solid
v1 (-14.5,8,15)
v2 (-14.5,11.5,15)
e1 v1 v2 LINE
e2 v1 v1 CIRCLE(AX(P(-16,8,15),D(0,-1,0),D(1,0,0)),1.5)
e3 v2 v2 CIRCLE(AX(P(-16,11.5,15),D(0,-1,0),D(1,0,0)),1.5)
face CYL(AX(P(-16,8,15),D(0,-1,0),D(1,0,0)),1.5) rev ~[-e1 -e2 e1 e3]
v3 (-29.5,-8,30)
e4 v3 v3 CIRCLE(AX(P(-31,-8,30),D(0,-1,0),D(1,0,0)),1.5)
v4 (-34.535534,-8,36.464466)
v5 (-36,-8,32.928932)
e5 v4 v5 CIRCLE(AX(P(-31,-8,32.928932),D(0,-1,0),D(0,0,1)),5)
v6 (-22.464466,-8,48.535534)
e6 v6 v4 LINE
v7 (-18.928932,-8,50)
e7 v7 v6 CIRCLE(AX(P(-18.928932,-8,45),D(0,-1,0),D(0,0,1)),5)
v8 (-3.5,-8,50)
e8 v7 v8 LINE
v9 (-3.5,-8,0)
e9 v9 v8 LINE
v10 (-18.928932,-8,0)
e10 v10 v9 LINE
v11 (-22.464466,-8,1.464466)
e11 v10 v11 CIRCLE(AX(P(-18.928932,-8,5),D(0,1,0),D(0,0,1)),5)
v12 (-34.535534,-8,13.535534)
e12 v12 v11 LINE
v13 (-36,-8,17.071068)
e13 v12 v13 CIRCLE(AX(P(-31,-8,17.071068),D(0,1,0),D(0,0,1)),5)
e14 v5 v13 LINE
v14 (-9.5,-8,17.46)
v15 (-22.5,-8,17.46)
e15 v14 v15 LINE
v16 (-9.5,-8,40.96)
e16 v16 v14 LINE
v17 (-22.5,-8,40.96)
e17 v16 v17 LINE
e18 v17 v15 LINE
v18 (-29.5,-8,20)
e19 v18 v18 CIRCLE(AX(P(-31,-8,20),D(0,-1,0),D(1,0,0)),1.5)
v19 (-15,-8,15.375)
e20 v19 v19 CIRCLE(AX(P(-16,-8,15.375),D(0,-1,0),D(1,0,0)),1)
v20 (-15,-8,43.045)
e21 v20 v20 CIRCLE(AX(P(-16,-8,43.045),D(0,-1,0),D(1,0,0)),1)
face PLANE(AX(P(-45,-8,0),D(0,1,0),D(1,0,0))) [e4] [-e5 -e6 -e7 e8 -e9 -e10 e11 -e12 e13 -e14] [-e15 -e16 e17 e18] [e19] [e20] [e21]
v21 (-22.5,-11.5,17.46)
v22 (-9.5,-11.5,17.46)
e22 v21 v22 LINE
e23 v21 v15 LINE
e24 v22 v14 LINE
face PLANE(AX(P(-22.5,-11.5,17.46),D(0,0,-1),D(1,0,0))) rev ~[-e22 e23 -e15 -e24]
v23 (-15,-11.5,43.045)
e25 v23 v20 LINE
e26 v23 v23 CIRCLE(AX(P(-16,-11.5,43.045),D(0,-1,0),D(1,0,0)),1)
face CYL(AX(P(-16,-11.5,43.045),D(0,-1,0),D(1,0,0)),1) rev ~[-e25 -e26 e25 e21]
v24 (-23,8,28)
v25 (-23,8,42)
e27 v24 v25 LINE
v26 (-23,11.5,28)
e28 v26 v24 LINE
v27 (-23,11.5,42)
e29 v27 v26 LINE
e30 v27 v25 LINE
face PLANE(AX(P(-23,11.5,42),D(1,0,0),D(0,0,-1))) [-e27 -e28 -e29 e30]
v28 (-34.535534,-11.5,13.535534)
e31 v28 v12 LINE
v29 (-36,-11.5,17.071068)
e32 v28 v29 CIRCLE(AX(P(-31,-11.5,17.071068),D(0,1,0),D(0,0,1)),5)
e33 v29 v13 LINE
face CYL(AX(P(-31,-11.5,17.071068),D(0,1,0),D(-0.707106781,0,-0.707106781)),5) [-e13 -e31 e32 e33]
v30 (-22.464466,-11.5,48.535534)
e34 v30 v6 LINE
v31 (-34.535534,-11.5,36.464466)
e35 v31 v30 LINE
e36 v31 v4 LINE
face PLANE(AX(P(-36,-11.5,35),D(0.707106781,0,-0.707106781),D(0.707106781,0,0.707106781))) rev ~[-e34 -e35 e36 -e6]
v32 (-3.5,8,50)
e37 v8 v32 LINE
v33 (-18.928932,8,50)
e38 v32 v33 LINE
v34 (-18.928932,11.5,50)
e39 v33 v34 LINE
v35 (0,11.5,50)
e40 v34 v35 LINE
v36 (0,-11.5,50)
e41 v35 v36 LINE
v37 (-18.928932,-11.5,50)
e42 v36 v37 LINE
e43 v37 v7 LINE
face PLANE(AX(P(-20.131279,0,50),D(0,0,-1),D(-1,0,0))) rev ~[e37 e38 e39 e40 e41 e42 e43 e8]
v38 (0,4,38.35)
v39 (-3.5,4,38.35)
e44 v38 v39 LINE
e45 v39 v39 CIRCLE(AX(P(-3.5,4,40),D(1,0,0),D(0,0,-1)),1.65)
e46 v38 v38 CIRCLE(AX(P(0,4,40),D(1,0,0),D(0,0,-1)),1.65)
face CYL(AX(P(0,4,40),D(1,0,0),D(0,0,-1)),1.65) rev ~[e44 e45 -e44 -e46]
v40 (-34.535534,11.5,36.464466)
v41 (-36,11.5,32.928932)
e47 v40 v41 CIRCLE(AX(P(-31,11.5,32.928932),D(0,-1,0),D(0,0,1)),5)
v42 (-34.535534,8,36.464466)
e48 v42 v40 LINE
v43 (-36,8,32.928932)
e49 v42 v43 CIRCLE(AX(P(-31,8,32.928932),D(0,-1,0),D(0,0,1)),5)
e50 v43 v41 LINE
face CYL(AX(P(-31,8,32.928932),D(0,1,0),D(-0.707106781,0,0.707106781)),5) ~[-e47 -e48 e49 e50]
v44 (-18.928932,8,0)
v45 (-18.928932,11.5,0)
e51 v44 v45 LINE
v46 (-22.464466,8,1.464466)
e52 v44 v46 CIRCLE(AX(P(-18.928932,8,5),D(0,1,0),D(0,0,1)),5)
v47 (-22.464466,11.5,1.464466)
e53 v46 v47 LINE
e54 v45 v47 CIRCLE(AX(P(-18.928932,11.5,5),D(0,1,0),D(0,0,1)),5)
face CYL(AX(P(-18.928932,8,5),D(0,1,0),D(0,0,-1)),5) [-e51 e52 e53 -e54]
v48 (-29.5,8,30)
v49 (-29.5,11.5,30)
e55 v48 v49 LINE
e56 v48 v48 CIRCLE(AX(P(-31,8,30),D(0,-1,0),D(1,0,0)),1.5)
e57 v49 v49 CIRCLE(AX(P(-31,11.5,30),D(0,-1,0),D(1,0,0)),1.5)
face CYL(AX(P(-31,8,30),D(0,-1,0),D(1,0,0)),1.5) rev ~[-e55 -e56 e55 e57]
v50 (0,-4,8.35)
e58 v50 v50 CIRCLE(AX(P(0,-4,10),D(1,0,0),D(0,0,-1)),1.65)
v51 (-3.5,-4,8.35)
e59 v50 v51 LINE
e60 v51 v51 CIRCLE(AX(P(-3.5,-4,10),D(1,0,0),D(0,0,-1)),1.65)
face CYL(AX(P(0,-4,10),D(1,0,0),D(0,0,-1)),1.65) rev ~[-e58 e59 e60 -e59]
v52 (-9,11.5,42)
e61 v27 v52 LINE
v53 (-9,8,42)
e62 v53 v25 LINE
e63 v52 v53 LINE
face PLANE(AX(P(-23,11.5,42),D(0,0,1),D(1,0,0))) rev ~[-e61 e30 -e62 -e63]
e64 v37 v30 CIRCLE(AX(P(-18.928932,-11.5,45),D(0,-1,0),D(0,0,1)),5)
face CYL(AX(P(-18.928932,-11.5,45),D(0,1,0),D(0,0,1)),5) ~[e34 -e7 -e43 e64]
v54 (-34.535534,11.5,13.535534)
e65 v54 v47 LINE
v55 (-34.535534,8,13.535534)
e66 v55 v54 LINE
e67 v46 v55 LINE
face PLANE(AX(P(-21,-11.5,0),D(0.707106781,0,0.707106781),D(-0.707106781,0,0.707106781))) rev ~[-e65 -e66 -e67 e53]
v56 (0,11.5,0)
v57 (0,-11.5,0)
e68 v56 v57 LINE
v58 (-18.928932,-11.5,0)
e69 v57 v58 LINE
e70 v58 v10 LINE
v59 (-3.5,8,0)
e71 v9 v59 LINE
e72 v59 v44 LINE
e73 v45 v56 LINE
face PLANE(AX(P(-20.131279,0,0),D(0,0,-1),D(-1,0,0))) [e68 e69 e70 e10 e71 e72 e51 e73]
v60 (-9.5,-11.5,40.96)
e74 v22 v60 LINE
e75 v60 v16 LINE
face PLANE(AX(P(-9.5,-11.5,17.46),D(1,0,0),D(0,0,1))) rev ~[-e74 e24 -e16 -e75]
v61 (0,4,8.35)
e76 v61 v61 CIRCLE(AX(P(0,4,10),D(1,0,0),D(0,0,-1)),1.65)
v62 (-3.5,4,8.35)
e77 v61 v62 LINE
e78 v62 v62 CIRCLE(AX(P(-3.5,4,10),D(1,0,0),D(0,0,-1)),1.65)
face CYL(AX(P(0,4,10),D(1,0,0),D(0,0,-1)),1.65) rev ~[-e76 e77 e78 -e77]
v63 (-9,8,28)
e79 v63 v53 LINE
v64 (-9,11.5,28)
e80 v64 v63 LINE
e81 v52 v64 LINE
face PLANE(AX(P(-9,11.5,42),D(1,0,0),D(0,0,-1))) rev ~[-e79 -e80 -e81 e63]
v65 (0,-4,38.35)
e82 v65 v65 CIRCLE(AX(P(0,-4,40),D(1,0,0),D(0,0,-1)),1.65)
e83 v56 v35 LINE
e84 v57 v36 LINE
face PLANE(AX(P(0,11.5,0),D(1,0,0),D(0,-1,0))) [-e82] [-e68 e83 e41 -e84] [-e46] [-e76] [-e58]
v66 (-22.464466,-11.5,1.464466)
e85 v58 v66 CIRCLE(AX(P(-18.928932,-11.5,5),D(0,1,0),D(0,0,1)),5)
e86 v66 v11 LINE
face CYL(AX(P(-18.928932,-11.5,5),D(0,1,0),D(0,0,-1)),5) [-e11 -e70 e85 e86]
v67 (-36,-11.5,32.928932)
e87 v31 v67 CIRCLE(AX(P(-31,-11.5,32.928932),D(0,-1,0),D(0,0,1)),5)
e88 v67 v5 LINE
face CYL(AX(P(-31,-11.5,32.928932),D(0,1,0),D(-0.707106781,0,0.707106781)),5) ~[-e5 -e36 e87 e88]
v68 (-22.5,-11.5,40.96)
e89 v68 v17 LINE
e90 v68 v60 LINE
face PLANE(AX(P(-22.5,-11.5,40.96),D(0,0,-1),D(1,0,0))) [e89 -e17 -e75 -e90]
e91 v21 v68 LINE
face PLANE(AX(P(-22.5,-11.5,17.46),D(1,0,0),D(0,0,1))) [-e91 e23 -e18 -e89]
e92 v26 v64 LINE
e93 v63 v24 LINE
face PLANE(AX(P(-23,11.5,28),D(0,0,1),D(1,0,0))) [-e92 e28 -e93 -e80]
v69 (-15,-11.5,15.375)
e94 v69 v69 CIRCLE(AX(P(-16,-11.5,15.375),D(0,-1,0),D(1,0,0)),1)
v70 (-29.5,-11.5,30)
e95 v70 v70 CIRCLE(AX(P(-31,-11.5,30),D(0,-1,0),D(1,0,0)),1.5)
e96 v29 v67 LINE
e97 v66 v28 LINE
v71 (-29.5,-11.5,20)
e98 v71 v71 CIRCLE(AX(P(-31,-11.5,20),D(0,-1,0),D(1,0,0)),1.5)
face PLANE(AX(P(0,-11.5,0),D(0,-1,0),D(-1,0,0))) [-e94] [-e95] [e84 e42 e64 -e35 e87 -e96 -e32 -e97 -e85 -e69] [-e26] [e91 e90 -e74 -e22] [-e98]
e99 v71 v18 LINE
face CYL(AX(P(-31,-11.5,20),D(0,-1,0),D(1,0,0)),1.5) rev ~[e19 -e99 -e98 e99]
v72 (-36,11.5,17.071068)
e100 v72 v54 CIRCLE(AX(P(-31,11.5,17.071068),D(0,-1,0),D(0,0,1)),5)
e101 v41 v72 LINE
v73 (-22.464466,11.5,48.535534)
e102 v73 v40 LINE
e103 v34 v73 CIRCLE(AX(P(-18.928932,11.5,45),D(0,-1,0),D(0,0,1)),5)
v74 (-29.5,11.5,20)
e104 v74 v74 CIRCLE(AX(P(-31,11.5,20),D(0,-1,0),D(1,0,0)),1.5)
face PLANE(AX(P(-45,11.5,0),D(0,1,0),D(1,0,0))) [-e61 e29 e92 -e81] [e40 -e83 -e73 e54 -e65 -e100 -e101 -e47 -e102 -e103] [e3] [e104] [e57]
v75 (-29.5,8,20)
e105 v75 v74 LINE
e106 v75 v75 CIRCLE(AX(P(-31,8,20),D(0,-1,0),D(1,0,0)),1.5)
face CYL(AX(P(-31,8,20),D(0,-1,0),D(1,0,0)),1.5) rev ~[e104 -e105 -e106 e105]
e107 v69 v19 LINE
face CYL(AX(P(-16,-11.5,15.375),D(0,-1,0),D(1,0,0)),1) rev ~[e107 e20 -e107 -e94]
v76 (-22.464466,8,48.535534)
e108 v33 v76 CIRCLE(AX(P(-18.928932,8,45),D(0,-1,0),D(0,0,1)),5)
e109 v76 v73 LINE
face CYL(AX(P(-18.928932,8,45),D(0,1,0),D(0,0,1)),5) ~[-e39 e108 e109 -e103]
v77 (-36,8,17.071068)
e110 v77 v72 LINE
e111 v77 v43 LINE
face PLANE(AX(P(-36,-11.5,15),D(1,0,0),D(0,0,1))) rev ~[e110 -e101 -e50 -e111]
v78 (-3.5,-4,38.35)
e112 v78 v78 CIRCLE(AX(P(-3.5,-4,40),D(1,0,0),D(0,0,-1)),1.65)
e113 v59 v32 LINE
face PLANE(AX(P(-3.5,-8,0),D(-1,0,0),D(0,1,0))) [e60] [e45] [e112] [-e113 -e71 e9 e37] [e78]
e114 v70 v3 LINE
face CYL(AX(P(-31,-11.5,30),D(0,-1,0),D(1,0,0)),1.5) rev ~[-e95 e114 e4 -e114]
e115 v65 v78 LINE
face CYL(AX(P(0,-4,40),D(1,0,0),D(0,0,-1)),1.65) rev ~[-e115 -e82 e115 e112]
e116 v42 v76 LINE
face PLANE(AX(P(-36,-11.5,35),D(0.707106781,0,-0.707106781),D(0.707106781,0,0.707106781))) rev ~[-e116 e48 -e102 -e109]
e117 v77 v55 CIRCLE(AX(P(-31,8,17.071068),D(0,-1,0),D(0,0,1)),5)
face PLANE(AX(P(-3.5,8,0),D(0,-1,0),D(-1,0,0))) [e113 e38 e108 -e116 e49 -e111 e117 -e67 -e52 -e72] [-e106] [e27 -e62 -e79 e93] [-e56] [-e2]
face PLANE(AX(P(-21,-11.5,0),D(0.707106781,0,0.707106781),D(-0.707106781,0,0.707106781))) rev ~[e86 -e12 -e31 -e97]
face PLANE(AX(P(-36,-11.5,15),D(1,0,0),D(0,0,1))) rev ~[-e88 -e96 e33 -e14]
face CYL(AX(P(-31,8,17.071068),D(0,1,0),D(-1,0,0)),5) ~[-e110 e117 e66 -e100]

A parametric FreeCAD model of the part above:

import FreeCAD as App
import Part
import Sketcher

V = App.Vector
Q = App.Units.Quantity


def edges_at(feature, points):
    """Names of the edges that pass closest to the given points."""
    edges = feature.Shape.Edges
    near = lambda p: min(range(len(edges)), key=lambda i: edges[i].distToShape(Part.Vertex(*p))[0])
    return sorted({f"Edge{near(p) + 1}" for p in points})


def add_polygon(sketch, points):
    """Adds a closed chain of lines whose ends are joined by coincident constraints."""
    first, n = sketch.GeometryCount, len(points)
    for a, b in zip(points, points[1:] + points[:1]):
        sketch.addGeometry(Part.LineSegment(App.Vector(*a, 0), App.Vector(*b, 0)), False)
    for i in range(n):
        sketch.addConstraint(Sketcher.Constraint("Coincident", first + i, 2, first + (i + 1) % n, 1))

doc = App.newDocument("Part")
body = doc.addObject("PartDesign::Body", "Body")

# Sketch on XY plane
sketch1 = body.newObject("Sketcher::SketchObject", "Sketch")
sketch1.AttachmentSupport = (doc.getObject("XY_Plane"), [""])
sketch1.MapMode = "FlatFace"
add_polygon(sketch1, [(0, 11.5), (-45, 11.5), (-45, 8), (-3.5, 8), (-3.5, -8), (-45, -8), (-45, -11.5), (0, -11.5)])  # lines 0-7
sketch1.addConstraint([
    Sketcher.Constraint("Horizontal", 0),
    Sketcher.Constraint("Vertical", 1),
    Sketcher.Constraint("Horizontal", 2),
    Sketcher.Constraint("Vertical", 3),
    Sketcher.Constraint("Horizontal", 4),
    Sketcher.Constraint("Vertical", 5),
    Sketcher.Constraint("Horizontal", 6),
    Sketcher.Constraint("Vertical", 7),
    Sketcher.Constraint("Symmetric", 6, 2, 7, 2, -1, 1),
    Sketcher.Constraint("Symmetric", 1, 2, 4, 2, -1),
    Sketcher.Constraint("DistanceX", 0, 2, 0, 1, Q("45 mm")),
    Sketcher.Constraint("DistanceY", 3, 2, 3, 1, Q("16 mm")),
    Sketcher.Constraint("DistanceY", 7, 1, 7, 2, Q("23 mm")),
    Sketcher.Constraint("DistanceX", 2, 1, 2, 2, Q("41.5 mm")),
])
pad1 = body.newObject("PartDesign::Pad", "Pad")
pad1.Profile = sketch1
pad1.Length = 50

# Sketch on XZ plane
sketch2 = body.newObject("Sketcher::SketchObject", "Sketch001")
sketch2.AttachmentSupport = (doc.getObject("XZ_Plane"), [""])
sketch2.MapMode = "FlatFace"
sketch2.AttachmentOffset = App.Placement(V(0, 0, -8), App.Rotation())
sketch2.addGeometry([
    Part.Circle(V(-16, 35, 0), V(0, 0, 1), 1.5),
    Part.Circle(V(-16, 15, 0), V(0, 0, 1), 1.5),
    Part.Circle(V(-31, 30, 0), V(0, 0, 1), 1.5),
    Part.Circle(V(-31, 20, 0), V(0, 0, 1), 1.5),
], False)
sketch2.addConstraint([
    Sketcher.Constraint("Equal", 0, 1),
    Sketcher.Constraint("Equal", 1, 2),
    Sketcher.Constraint("Equal", 2, 3),
    Sketcher.Constraint("Vertical", 0, 3, 1, 3),
    Sketcher.Constraint("Vertical", 2, 3, 3, 3),
    Sketcher.Constraint("Diameter", 0, Q("3 mm")),
    Sketcher.Constraint("DistanceX", 0, 3, -1, 1, Q("16 mm")),
    Sketcher.Constraint("DistanceY", -1, 1, 0, 3, Q("35 mm")),
    Sketcher.Constraint("DistanceY", -1, 1, 1, 3, Q("15 mm")),
    Sketcher.Constraint("DistanceX", 2, 3, -1, 1, Q("31 mm")),
    Sketcher.Constraint("DistanceY", -1, 1, 2, 3, Q("30 mm")),
    Sketcher.Constraint("DistanceY", -1, 1, 3, 3, Q("20 mm")),
])
pocket1 = body.newObject("PartDesign::Pocket", "Pocket")
pocket1.Profile = sketch2
pocket1.Length = 70

# Sketch on XZ plane
sketch3 = body.newObject("Sketcher::SketchObject", "Sketch002")
sketch3.AttachmentSupport = (doc.getObject("XZ_Plane"), [""])
sketch3.MapMode = "FlatFace"
sketch3.AttachmentOffset = App.Placement(V(0, 0, 11.5), App.Rotation())
add_polygon(sketch3, [(-53, 58), (-53, -8), (8, -8), (8, 58)])  # lines 0-3
add_polygon(sketch3, [(0, 0), (-21, 0), (-36, 15), (-36, 35), (-21, 50), (0, 50)])  # lines 4-9
sketch3.addConstraint([
    Sketcher.Constraint("Vertical", 0),
    Sketcher.Constraint("Horizontal", 1),
    Sketcher.Constraint("Vertical", 2),
    Sketcher.Constraint("Horizontal", 3),
    Sketcher.Constraint("Horizontal", 4),
    Sketcher.Constraint("Vertical", 6),
    Sketcher.Constraint("Horizontal", 8),
    Sketcher.Constraint("Vertical", 9),
    Sketcher.Constraint("Coincident", 9, 2, -1, 1),
    Sketcher.Constraint("Perpendicular", 5, 7),
    Sketcher.Constraint("Vertical", 4, 2, 7, 2),
    Sketcher.Constraint("Equal", 5, 7),
    Sketcher.Constraint("DistanceX", 4, 2, 4, 1, Q("21 mm")),
    Sketcher.Constraint("DistanceY", 6, 1, 6, 2, Q("20 mm")),
    Sketcher.Constraint("DistanceY", 9, 2, 9, 1, Q("50 mm")),
    Sketcher.Constraint("DistanceX", 1, 1, 1, 2, Q("61.218 mm")),
    Sketcher.Constraint("DistanceY", 0, 2, 0, 1, Q("66.218 mm")),
    Sketcher.Constraint("DistanceX", 0, 2, -1, 1, Q("53.109 mm")),
    Sketcher.Constraint("DistanceY", 0, 2, -1, 1, Q("8.109 mm")),
])
pocket2 = body.newObject("PartDesign::Pocket", "Pocket001")
pocket2.Profile = sketch3
pocket2.Length = 70

# Sketch on XZ plane
sketch4 = body.newObject("Sketcher::SketchObject", "Sketch003")
sketch4.AttachmentSupport = (doc.getObject("XZ_Plane"), [""])
sketch4.MapMode = "FlatFace"
sketch4.AttachmentOffset = App.Placement(V(0, 0, 11.5), App.Rotation())
sketch4.addGeometry([
    Part.Circle(V(-31, 30, 0), V(0, 0, 1), 1.5),
    Part.Circle(V(-31, 20, 0), V(0, 0, 1), 1.5),
], False)
sketch4.addConstraint([
    Sketcher.Constraint("Equal", 0, 1),
    Sketcher.Constraint("Vertical", 0, 3, 1, 3),
    Sketcher.Constraint("Diameter", 0, Q("3 mm")),
    Sketcher.Constraint("DistanceX", 0, 3, -1, 1, Q("31 mm")),
    Sketcher.Constraint("DistanceY", -1, 1, 0, 3, Q("30 mm")),
    Sketcher.Constraint("DistanceY", -1, 1, 1, 3, Q("20 mm")),
])
pocket3 = body.newObject("PartDesign::Pocket", "Pocket002")
pocket3.Profile = sketch4
pocket3.Length = 10

# Sketch on XZ plane
sketch5 = body.newObject("Sketcher::SketchObject", "Sketch004")
sketch5.AttachmentSupport = (doc.getObject("XZ_Plane"), [""])
sketch5.MapMode = "FlatFace"
sketch5.AttachmentOffset = App.Placement(V(0, 0, 11.5), App.Rotation())
sketch5.addGeometry([
    Part.Circle(V(-16, 43, 0), V(0, 0, 1), 1),
    Part.Circle(V(-16, 15.4, 0), V(0, 0, 1), 1),
], False)
sketch5.addConstraint([
    Sketcher.Constraint("Equal", 0, 1),
    Sketcher.Constraint("Vertical", 0, 3, 1, 3),
    Sketcher.Constraint("Diameter", 0, Q("2 mm")),
    Sketcher.Constraint("DistanceX", 0, 3, -1, 1, Q("16 mm")),
    Sketcher.Constraint("DistanceY", 1, 3, 0, 3, Q("27.67 mm")),
    Sketcher.Constraint("DistanceY", -1, 1, 0, 3, Q("43.045 mm")),
])
pocket4 = body.newObject("PartDesign::Pocket", "Pocket003")
pocket4.Profile = sketch5
pocket4.Length = 10
doc.recompute()

fillet = body.newObject("PartDesign::Fillet", "Fillet")
fillet.Base = (pocket4, edges_at(pocket4, [
    (-21, -9.75, 0),
    (-21, 9.75, 0),
    (-21, -9.75, 50),
    (-21, 9.75, 50),
    (-36, 9.75, 35),
    (-36, -9.75, 35),
    (-36, 9.75, 15),
    (-36, -9.75, 15),
]))
fillet.Radius = 5

# Sketch on XZ plane
sketch6 = body.newObject("Sketcher::SketchObject", "Sketch005")
sketch6.AttachmentSupport = (doc.getObject("XZ_Plane"), [""])
sketch6.MapMode = "FlatFace"
sketch6.AttachmentOffset = App.Placement(V(0, 0, 11.5), App.Rotation())
add_polygon(sketch6, [(-22, 41), (-22, 17), (-10, 17), (-10, 41)])  # lines 0-3
sketch6.addConstraint([
    Sketcher.Constraint("Vertical", 0),
    Sketcher.Constraint("Horizontal", 1),
    Sketcher.Constraint("Vertical", 2),
    Sketcher.Constraint("Horizontal", 3),
    Sketcher.Constraint("DistanceX", 1, 1, 1, 2, Q("13 mm")),
    Sketcher.Constraint("DistanceY", 0, 2, 0, 1, Q("23.5 mm")),
    Sketcher.Constraint("DistanceX", 0, 2, -1, 1, Q("22.5 mm")),
    Sketcher.Constraint("DistanceY", -1, 1, 0, 2, Q("17.46 mm")),
])
pocket5 = body.newObject("PartDesign::Pocket", "Pocket004")
pocket5.Profile = sketch6
pocket5.Length = 10

# Sketch on YZ plane
sketch7 = body.newObject("Sketcher::SketchObject", "Sketch006")
sketch7.AttachmentSupport = (doc.getObject("YZ_Plane"), [""])
sketch7.MapMode = "FlatFace"
sketch7.addGeometry([
    Part.Circle(V(4, 10, 0), V(0, 0, 1), 1.6),
    Part.Circle(V(4, 40, 0), V(0, 0, 1), 1.6),
    Part.Circle(V(-4, 10, 0), V(0, 0, 1), 1.6),
    Part.Circle(V(-4, 40, 0), V(0, 0, 1), 1.6),
], False)
sketch7.addConstraint([
    Sketcher.Constraint("Equal", 0, 1),
    Sketcher.Constraint("Equal", 1, 2),
    Sketcher.Constraint("Equal", 2, 3),
    Sketcher.Constraint("Symmetric", 0, 3, 2, 3, -2),
    Sketcher.Constraint("Symmetric", 1, 3, 3, 3, -2),
    Sketcher.Constraint("Vertical", 0, 3, 1, 3),
    Sketcher.Constraint("Diameter", 0, Q("3.3 mm")),
    Sketcher.Constraint("DistanceX", -1, 1, 0, 3, Q("4 mm")),
    Sketcher.Constraint("DistanceY", -1, 1, 0, 3, Q("10 mm")),
    Sketcher.Constraint("DistanceY", -1, 1, 1, 3, Q("40 mm")),
])
pocket6 = body.newObject("PartDesign::Pocket", "Pocket005")
pocket6.Profile = sketch7
pocket6.Length = 10

# Sketch on XZ plane
sketch8 = body.newObject("Sketcher::SketchObject", "Sketch007")
sketch8.AttachmentSupport = (doc.getObject("XZ_Plane"), [""])
sketch8.MapMode = "FlatFace"
sketch8.AttachmentOffset = App.Placement(V(0, 0, -11.5), App.Rotation())
add_polygon(sketch8, [(-23, 28), (-23, 42), (-9, 42), (-9, 28)])  # lines 0-3
sketch8.addConstraint([
    Sketcher.Constraint("Vertical", 0),
    Sketcher.Constraint("Horizontal", 1),
    Sketcher.Constraint("Vertical", 2),
    Sketcher.Constraint("Horizontal", 3),
    Sketcher.Constraint("Equal", 3, 0),
    Sketcher.Constraint("DistanceX", 1, 1, 1, 2, Q("14 mm")),
    Sketcher.Constraint("DistanceX", 0, 2, -1, 1, Q("23 mm")),
    Sketcher.Constraint("DistanceY", -1, 1, 0, 2, Q("42 mm")),
])
pocket7 = body.newObject("PartDesign::Pocket", "Pocket006")
pocket7.Profile = sketch8
pocket7.Length = 10
pocket7.Reversed = True

doc.recompute()
